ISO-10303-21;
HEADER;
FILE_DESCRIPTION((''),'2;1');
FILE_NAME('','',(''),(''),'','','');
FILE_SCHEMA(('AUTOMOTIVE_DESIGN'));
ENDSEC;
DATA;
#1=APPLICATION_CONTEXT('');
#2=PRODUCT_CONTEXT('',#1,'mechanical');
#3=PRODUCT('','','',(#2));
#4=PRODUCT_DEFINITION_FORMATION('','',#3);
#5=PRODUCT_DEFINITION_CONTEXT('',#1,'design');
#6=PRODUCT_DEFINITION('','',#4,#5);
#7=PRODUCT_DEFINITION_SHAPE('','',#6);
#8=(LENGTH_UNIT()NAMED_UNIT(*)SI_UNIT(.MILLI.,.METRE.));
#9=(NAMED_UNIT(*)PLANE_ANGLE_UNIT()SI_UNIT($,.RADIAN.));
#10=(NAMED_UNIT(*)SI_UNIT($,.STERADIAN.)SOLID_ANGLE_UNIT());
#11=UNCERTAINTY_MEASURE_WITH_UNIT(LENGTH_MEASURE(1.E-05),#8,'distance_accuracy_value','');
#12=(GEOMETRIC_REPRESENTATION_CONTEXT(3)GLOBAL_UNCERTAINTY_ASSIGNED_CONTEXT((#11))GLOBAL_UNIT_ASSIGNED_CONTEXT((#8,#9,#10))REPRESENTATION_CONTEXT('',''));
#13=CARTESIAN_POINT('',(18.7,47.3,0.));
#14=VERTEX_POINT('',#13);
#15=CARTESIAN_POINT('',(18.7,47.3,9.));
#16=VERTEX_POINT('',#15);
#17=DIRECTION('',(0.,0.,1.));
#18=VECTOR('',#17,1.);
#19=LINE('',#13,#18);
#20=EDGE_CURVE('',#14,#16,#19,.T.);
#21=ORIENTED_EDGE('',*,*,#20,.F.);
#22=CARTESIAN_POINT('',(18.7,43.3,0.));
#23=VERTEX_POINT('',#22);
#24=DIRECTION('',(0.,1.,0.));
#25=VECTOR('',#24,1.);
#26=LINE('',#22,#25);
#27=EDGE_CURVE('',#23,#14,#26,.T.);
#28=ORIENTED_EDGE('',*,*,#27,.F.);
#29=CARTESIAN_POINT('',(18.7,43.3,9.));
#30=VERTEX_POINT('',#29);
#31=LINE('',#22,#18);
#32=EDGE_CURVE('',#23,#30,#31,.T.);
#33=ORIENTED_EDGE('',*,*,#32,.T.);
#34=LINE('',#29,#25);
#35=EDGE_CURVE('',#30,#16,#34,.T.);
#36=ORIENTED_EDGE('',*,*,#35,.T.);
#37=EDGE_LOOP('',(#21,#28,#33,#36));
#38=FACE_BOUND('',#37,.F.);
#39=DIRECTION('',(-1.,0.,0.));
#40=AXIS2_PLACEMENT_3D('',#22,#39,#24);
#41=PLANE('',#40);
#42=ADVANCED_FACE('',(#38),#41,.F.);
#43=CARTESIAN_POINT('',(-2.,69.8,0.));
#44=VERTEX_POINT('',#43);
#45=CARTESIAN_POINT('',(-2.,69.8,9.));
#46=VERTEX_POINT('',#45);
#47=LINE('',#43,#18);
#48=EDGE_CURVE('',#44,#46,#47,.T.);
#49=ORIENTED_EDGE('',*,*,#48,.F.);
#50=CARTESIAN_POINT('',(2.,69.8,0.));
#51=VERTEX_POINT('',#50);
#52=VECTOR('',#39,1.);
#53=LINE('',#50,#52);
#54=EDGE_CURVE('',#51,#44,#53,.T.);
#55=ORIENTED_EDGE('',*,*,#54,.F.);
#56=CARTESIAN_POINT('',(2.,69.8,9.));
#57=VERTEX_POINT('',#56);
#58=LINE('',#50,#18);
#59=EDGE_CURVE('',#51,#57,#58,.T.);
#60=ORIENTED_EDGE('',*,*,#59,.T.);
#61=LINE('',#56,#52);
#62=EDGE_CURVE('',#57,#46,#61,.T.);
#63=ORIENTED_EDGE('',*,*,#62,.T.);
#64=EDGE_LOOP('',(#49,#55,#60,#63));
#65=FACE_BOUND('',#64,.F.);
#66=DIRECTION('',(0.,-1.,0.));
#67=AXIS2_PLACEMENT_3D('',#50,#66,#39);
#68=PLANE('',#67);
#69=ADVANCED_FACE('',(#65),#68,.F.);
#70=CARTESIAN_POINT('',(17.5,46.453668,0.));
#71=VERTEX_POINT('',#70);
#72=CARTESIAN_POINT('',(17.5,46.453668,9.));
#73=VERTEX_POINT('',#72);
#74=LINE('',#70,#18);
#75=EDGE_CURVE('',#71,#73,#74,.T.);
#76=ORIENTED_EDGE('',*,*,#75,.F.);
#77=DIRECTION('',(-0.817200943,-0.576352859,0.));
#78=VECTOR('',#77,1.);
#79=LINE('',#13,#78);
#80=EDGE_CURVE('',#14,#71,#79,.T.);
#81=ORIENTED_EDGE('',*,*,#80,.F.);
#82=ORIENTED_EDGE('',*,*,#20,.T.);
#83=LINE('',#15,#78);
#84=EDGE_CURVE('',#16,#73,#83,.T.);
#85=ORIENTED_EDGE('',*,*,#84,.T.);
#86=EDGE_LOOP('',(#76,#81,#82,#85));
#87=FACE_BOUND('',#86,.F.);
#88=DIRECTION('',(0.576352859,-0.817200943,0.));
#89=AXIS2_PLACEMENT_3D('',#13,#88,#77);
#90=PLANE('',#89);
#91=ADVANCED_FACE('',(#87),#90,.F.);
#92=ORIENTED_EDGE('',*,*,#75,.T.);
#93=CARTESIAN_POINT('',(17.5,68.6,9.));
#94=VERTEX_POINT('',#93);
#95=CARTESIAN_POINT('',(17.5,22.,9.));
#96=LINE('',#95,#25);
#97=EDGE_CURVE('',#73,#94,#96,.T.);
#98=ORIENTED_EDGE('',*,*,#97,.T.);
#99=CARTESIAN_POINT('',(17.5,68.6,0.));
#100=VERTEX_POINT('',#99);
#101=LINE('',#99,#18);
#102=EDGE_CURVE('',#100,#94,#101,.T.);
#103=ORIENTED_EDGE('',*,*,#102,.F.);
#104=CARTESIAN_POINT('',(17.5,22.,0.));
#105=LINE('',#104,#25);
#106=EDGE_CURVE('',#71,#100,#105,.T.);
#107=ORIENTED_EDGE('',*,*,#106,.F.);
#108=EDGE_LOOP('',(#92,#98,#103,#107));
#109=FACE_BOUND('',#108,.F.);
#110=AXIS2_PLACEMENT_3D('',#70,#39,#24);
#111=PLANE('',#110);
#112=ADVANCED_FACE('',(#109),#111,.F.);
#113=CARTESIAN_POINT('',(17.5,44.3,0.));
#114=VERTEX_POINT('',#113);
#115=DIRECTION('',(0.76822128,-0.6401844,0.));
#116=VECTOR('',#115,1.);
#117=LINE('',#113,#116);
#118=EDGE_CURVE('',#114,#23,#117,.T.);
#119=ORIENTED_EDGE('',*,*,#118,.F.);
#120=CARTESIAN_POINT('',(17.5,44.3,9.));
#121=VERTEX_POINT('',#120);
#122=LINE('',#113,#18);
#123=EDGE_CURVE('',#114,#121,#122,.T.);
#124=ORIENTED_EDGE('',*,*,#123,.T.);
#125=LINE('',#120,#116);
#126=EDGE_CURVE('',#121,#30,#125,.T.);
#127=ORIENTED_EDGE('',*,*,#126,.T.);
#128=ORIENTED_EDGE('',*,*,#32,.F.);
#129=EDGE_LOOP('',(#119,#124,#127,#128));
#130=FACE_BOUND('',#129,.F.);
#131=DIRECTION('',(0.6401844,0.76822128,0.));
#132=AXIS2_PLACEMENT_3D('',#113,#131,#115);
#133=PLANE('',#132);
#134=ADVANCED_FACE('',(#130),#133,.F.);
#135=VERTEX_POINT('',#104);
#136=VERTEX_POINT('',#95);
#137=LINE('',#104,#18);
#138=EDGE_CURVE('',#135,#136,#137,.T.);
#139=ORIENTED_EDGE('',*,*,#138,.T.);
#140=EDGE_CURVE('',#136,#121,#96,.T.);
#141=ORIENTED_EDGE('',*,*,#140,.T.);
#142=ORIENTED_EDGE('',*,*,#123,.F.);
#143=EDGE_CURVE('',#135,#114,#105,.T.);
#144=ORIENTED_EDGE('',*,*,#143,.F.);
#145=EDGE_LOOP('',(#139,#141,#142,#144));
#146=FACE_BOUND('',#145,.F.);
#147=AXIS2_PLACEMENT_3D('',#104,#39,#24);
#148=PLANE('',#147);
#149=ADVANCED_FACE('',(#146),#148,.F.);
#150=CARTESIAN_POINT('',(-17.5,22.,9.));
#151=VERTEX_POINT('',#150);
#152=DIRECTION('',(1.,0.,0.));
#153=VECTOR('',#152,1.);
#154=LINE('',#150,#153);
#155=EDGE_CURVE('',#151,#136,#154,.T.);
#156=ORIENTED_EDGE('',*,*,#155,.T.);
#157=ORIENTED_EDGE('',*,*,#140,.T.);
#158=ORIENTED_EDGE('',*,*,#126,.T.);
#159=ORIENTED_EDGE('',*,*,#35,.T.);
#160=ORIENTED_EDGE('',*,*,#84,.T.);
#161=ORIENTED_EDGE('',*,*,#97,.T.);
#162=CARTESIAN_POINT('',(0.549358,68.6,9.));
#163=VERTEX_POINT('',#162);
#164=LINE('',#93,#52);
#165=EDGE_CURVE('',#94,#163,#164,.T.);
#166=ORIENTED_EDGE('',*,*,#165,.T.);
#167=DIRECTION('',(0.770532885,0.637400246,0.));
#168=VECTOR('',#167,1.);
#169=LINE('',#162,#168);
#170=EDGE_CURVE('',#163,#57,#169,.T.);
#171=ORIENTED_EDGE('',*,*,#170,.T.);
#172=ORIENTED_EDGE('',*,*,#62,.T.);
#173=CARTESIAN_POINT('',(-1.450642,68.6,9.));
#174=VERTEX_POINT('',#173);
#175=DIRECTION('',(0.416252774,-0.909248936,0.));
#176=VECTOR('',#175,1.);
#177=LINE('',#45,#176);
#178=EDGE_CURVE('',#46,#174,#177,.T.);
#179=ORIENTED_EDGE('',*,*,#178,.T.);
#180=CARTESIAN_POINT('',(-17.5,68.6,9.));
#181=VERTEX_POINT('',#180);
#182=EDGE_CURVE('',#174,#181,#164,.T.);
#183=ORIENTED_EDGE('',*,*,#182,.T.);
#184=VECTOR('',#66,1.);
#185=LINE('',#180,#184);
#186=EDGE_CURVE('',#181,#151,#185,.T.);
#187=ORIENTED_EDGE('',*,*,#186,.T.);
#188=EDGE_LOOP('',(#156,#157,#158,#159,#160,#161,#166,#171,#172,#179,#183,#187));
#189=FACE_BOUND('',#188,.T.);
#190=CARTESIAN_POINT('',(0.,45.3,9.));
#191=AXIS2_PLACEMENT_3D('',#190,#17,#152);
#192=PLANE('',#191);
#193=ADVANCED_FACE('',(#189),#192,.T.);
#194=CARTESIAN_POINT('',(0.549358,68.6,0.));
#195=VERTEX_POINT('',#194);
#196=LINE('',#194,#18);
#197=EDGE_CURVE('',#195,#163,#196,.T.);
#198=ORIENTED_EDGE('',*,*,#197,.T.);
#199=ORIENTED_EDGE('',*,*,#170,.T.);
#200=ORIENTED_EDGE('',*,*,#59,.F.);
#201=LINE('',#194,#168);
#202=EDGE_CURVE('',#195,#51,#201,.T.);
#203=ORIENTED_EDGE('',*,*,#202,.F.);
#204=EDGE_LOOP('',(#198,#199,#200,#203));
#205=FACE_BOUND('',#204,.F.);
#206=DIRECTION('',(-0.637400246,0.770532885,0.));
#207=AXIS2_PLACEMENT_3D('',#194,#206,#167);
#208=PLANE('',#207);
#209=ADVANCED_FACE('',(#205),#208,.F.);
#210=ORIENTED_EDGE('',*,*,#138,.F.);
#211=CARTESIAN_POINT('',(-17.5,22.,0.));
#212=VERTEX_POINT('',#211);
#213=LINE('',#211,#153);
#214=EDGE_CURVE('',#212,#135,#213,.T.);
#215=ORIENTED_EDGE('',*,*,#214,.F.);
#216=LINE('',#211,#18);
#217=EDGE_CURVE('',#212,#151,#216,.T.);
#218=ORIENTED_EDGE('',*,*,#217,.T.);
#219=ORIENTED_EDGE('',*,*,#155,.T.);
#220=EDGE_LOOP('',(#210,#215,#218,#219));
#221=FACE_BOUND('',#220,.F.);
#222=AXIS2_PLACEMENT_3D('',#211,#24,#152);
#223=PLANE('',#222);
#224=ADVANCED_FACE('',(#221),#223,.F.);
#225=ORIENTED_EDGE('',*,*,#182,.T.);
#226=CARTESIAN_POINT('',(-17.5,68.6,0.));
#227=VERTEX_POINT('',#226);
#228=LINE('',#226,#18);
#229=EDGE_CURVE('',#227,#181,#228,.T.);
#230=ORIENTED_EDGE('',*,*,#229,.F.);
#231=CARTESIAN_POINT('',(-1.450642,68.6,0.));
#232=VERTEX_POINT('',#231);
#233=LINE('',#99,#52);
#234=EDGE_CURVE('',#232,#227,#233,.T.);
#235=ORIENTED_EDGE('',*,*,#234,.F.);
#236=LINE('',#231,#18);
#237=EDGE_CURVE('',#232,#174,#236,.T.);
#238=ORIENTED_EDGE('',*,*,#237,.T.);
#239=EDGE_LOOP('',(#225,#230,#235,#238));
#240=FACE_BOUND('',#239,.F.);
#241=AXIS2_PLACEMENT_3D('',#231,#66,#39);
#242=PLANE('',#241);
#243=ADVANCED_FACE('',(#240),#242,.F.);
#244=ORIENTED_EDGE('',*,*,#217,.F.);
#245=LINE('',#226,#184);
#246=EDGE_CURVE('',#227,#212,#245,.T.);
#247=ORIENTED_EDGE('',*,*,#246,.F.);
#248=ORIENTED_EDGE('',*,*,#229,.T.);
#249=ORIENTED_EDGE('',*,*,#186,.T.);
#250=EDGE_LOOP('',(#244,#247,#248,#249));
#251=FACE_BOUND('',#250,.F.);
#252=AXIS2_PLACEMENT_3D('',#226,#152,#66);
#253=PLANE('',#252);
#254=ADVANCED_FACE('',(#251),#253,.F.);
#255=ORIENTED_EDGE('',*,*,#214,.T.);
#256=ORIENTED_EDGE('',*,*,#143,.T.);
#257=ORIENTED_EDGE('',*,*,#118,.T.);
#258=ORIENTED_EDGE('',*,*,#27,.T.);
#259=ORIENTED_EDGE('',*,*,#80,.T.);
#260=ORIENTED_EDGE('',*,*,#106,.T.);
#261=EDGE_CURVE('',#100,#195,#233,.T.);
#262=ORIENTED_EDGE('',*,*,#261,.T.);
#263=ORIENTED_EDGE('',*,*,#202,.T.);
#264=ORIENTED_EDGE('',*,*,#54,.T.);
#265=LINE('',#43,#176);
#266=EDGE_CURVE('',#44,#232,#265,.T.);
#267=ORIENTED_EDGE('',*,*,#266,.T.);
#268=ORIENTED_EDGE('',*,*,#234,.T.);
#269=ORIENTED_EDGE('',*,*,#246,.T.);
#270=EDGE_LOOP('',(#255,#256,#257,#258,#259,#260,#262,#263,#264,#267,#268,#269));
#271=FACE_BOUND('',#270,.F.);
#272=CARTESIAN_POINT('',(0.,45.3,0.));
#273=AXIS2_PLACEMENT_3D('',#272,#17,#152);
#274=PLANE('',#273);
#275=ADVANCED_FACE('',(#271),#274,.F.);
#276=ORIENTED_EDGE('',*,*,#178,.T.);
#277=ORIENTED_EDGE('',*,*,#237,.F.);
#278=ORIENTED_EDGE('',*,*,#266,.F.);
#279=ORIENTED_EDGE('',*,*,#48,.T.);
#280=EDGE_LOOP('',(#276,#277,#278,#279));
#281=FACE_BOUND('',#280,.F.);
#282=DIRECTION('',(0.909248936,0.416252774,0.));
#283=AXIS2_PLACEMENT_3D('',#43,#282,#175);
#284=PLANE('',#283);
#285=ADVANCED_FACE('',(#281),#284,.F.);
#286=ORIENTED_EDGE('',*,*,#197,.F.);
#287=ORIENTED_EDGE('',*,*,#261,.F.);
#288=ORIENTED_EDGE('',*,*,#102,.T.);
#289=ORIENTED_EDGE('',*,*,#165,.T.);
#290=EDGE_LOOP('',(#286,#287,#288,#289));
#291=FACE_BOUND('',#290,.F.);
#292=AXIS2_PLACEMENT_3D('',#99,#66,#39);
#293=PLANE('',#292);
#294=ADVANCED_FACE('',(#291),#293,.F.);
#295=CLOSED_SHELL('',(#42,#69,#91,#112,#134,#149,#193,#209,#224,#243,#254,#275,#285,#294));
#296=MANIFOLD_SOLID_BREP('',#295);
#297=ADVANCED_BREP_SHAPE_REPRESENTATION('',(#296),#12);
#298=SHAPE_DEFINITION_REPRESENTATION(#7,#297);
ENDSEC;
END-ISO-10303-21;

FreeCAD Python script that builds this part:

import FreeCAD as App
import Part
import Sketcher
from FreeCAD import Vector


def edges_at(feature, points):
    """Names of the edges that pass closest to the given points."""
    edges = feature.Shape.Edges
    near = lambda p: min(range(len(edges)), key=lambda i: edges[i].distToShape(Part.Vertex(*p))[0])
    return sorted({f"Edge{near(p) + 1}" for p in points})


def faces_at(feature, points):
    """Names of the faces that lie closest to the given points."""
    faces = feature.Shape.Faces
    near = lambda p: min(range(len(faces)), key=lambda i: faces[i].distToShape(Part.Vertex(*p))[0])
    return sorted({f"Face{near(p) + 1}" for p in points})


def add_polygon(sketch, points):
    """Adds a closed chain of lines whose ends are joined by coincident constraints."""
    first, n = sketch.GeometryCount, len(points)
    for a, b in zip(points, points[1:] + points[:1]):
        sketch.addGeometry(Part.LineSegment(App.Vector(*a, 0), App.Vector(*b, 0)), False)
    for i in range(n):
        sketch.addConstraint(Sketcher.Constraint("Coincident", first + i, 2, first + (i + 1) % n, 1))

doc = App.newDocument("Part")
params = doc.addObject("Spreadsheet::Sheet", "Params")
for row, (alias, value) in enumerate([
    ("sketch1_width", "50 mm"),
    ("sketch1_height", "30 mm"),
    ("pad1_length", "25 mm"),
    ("sketch2_height", "25 mm"),
    ("pad2_length", "50 mm"),
    ("fillet_radius", "5 mm"),
    ("thickness_wall", "2.5 mm"),
    ("pocket1_length", "25 mm"),
    ("sketch4_width", "35 mm"),
    ("sketch4_width2", "4 mm"),
    ("sketch4_height", "46.6 mm"),
    ("sketch4_height2", "22.3 mm"),
    ("pad3_length", "9 mm"),
    ("sketch5_width", "42 mm"),
    ("pad4_length", "22.5 mm"),
], start=1):
    params.set(f"A{row}", alias)
    params.set(f"B{row}", "=" + value)
    params.setAlias(f"B{row}", alias)

body = doc.addObject("PartDesign::Body", "Body")

sketch1 = doc.addObject("Sketcher::SketchObject", "Sketch")
body.addObject(sketch1)
sketch1.AttachmentSupport = (doc.XY_Plane, [""])
sketch1.MapMode = "FlatFace"
add_polygon(sketch1, [(-25, 15), (-25, -15), (25, -15), (25, 15)])
sketch1.addConstraint(Sketcher.Constraint("Vertical", 0))
sketch1.addConstraint(Sketcher.Constraint("Horizontal", 1))
sketch1.addConstraint(Sketcher.Constraint("Vertical", 2))
sketch1.addConstraint(Sketcher.Constraint("Horizontal", 3))
sketch1.addConstraint(Sketcher.Constraint("Symmetric", 0, 2, 2, 2, -1, 1))
sketch1.addConstraint(Sketcher.Constraint("DistanceX", 1, 1, 1, 2, 50.0))
sketch1.addConstraint(Sketcher.Constraint("DistanceY", 0, 2, 0, 1, 30.0))
sketch1.setExpression("Constraints[9]", "Params.sketch1_width")
sketch1.setExpression("Constraints[10]", "Params.sketch1_height")
pad1 = doc.addObject("PartDesign::Pad", "Pad")
body.addObject(pad1)
pad1.Profile = sketch1
pad1.setExpression("Length", "Params.pad1_length")
body2 = doc.addObject("PartDesign::Body", "Body001")

sketch2 = doc.addObject("Sketcher::SketchObject", "Sketch001")
body2.addObject(sketch2)
sketch2.AttachmentSupport = (doc.getObject("YZ_Plane001"), [""])
sketch2.MapMode = "FlatFace"
sketch2.AttachmentOffset = App.Placement(Vector(0, 0, 25), App.Rotation())
add_polygon(sketch2, [(-15, 0), (-15, 25), (-34, 0)])
sketch2.addConstraint(Sketcher.Constraint("Vertical", 0))
sketch2.addConstraint(Sketcher.Constraint("Horizontal", 2))
sketch2.addConstraint(Sketcher.Constraint("PointOnObject", 1, 2, -1))
sketch2.addConstraint(Sketcher.Constraint("DistanceY", 0, 1, 0, 2, 25.0))
sketch2.addConstraint(Sketcher.Constraint("DistanceX", 0, 2, -1, 1, 15.0))
sketch2.addConstraint(Sketcher.Constraint("DistanceX", 2, 1, 2, 2, 18.741876))
sketch2.setExpression("Constraints[6]", "Params.sketch2_height")
pad2 = doc.addObject("PartDesign::Pad", "Pad001")
body2.addObject(pad2)
pad2.Profile = sketch2
pad2.setExpression("Length", "Params.pad2_length")
pad2.Reversed = True
doc.recompute()

boolean = doc.addObject("PartDesign::Boolean", "Boolean")
body.addObject(boolean)
boolean.Type = "Fuse"
boolean.addObjects([body2])
doc.recompute()

fillet = doc.addObject("PartDesign::Fillet", "Fillet")
body.addObject(fillet)
fillet.Base = (boolean, edges_at(boolean, [
    (25, -24.371, 12.5),
    (-25, -24.371, 12.5),
    (0, -15, 25),
    (25, 0, 25),
    (-25, 0, 25),
]))
fillet.setExpression("Radius", "Params.fillet_radius")
doc.recompute()

thickness = doc.addObject("PartDesign::Thickness", "Thickness")
body.addObject(thickness)
thickness.Base = (fillet, faces_at(fillet, [(0, -9.371, 0)]))
thickness.setExpression("Value", "Params.thickness_wall")
thickness.Reversed = True
thickness.Join = "Arc"

sketch3 = doc.addObject("Sketcher::SketchObject", "Sketch002")
body.addObject(sketch3)
sketch3.Placement = App.Placement(Vector(0, -21.601538, 16.194134), App.Rotation(Vector(1, 0, 0), Vector(0, 0.599833591, 0.800124779), Vector(0, -0.800124779, 0.599833591), "ZXY"))
sketch3.addGeometry(Part.Circle(Vector(0, -5, 0), Vector(0, 0, 1), 11), False)
sketch3.addConstraint(Sketcher.Constraint("PointOnObject", 0, 3, -2))
sketch3.addConstraint(Sketcher.Constraint("Diameter", 0, 21.586174))
sketch3.addConstraint(Sketcher.Constraint("DistanceY", 0, 3, -1, 1, 5.495034))
pocket1 = doc.addObject("PartDesign::Pocket", "Pocket")
body.addObject(pocket1)
pocket1.Profile = sketch3
pocket1.setExpression("Length", "Params.pocket1_length")
body3 = doc.addObject("PartDesign::Body", "Body002")

sketch4 = doc.addObject("Sketcher::SketchObject", "Sketch003")
body3.addObject(sketch4)
sketch4.AttachmentSupport = (doc.getObject("XY_Plane002"), [""])
sketch4.MapMode = "FlatFace"
add_polygon(sketch4, [(-17.5, 68.6), (-17.5, 22), (17.5, 22), (17.5, 44.3), (18.7, 43.3), (18.7, 47.3), (17.5, 46.5), (17.5, 68.6), (0.5, 68.6), (2, 69.8), (-2, 69.8), (-1.5, 68.6)])
sketch4.addConstraint(Sketcher.Constraint("Vertical", 0))
sketch4.addConstraint(Sketcher.Constraint("Horizontal", 1))
sketch4.addConstraint(Sketcher.Constraint("Vertical", 2))
sketch4.addConstraint(Sketcher.Constraint("Vertical", 4))
sketch4.addConstraint(Sketcher.Constraint("Vertical", 6))
sketch4.addConstraint(Sketcher.Constraint("Horizontal", 7))
sketch4.addConstraint(Sketcher.Constraint("Horizontal", 9))
sketch4.addConstraint(Sketcher.Constraint("Horizontal", 11))
sketch4.addConstraint(Sketcher.Constraint("Symmetric", 6, 2, 11, 2, -2))
sketch4.addConstraint(Sketcher.Constraint("Vertical", 2, 2, 5, 2))
sketch4.addConstraint(Sketcher.Constraint("Equal", 9, 4))
sketch4.addConstraint(Sketcher.Constraint("DistanceX", 1, 1, 1, 2, 35.0))
sketch4.addConstraint(Sketcher.Constraint("DistanceX", 9, 2, 9, 1, 4.0))
sketch4.addConstraint(Sketcher.Constraint("DistanceY", 0, 2, 0, 1, 46.6))
sketch4.addConstraint(Sketcher.Constraint("DistanceY", 2, 1, 2, 2, 22.3))
sketch4.addConstraint(Sketcher.Constraint("DistanceY", -1, 1, 0, 2, 22.0))
sketch4.addConstraint(Sketcher.Constraint("DistanceX", -1, 1, 8, 2, 2.0))
sketch4.addConstraint(Sketcher.Constraint("DistanceY", 3, 2, 2, 2, 1.0))
sketch4.addConstraint(Sketcher.Constraint("DistanceX", 10, 2, 7, 2, 2.0))
sketch4.addConstraint(Sketcher.Constraint("DistanceX", -1, 1, 3, 2, 18.7))
sketch4.addConstraint(Sketcher.Constraint("DistanceY", -1, 1, 8, 2, 69.8))
sketch4.addConstraint(Sketcher.Constraint("DistanceX", 7, 2, 7, 1, 16.950642))
sketch4.addConstraint(Sketcher.Constraint("DistanceY", 6, 1, 6, 2, 22.146332))
sketch4.setExpression("Constraints[23]", "Params.sketch4_width")
sketch4.setExpression("Constraints[24]", "Params.sketch4_width2")
sketch4.setExpression("Constraints[25]", "Params.sketch4_height")
sketch4.setExpression("Constraints[26]", "Params.sketch4_height2")
pad3 = doc.addObject("PartDesign::Pad", "Pad002")
body3.addObject(pad3)
pad3.Profile = sketch4
pad3.setExpression("Length", "Params.pad3_length")
body4 = doc.addObject("PartDesign::Body", "Body003")

sketch5 = doc.addObject("Sketcher::SketchObject", "Sketch004")
body4.addObject(sketch5)
sketch5.AttachmentSupport = (doc.getObject("XY_Plane003"), [""])
sketch5.MapMode = "FlatFace"
add_polygon(sketch5, [(-21, 73), (-21, 0), (21, 0), (21, 73)])
sketch5.addConstraint(Sketcher.Constraint("Vertical", 0))
sketch5.addConstraint(Sketcher.Constraint("Horizontal", 1))
sketch5.addConstraint(Sketcher.Constraint("Vertical", 2))
sketch5.addConstraint(Sketcher.Constraint("Horizontal", 3))
sketch5.addConstraint(Sketcher.Constraint("Symmetric", 0, 2, 1, 2, -1, 1))
sketch5.addConstraint(Sketcher.Constraint("DistanceX", 1, 1, 1, 2, 42.0))
sketch5.addConstraint(Sketcher.Constraint("DistanceY", 0, 2, 0, 1, 73.167088))
sketch5.setExpression("Constraints[9]", "Params.sketch5_width")
pad4 = doc.addObject("PartDesign::Pad", "Pad003")
body4.addObject(pad4)
pad4.Profile = sketch5
pad4.setExpression("Length", "Params.pad4_length")
doc.recompute()

boolean2 = doc.addObject("PartDesign::Boolean", "Boolean001")
body.addObject(boolean2)
boolean2.Type = "Cut"
boolean2.addObjects([body4])
body.Visibility = False

doc.recompute()
